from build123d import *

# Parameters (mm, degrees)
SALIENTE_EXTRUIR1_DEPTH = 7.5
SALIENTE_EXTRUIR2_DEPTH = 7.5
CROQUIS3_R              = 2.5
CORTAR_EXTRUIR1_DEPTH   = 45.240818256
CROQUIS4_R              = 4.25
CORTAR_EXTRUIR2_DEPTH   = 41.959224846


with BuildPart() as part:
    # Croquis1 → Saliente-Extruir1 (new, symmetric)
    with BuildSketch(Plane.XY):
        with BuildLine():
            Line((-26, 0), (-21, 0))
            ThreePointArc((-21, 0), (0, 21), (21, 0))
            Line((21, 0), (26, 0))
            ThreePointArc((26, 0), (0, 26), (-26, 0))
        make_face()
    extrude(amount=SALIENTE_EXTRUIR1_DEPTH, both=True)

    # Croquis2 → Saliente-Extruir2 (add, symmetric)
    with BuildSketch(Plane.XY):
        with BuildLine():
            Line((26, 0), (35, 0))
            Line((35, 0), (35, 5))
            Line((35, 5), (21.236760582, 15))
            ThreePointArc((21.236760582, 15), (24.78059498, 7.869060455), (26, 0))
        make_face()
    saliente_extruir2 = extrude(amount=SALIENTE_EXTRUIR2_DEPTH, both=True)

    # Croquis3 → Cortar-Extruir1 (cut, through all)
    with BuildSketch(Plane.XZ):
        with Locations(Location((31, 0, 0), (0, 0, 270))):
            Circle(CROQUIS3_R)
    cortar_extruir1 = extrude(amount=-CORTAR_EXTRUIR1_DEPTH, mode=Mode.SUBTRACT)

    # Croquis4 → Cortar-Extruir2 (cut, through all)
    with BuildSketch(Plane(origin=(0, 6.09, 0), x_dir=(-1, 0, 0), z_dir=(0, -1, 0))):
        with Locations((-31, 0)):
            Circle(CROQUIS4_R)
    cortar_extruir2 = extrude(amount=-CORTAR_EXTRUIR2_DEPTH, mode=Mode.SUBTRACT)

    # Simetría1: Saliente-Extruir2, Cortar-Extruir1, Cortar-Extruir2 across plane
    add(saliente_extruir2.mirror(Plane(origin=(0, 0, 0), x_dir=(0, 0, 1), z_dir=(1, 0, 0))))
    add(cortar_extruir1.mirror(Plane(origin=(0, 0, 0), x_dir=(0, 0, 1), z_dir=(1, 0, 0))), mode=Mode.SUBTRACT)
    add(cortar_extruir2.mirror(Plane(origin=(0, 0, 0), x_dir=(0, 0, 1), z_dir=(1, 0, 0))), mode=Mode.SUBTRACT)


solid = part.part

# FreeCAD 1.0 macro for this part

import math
import FreeCAD as App
import Part
import Sketcher

V = App.Vector
Q = App.Units.Quantity

doc = App.newDocument("Part")
body = doc.addObject("PartDesign::Body", "Body")

# Sketch on XY plane
sketch1 = body.newObject("Sketcher::SketchObject", "Sketch")
sketch1.AttachmentSupport = (doc.getObject("XY_Plane"), [""])
sketch1.MapMode = "FlatFace"
sketch1.addGeometry([
    Part.LineSegment(V(-26, 0, 0), V(-21, 0, 0)),
    Part.ArcOfCircle(Part.Circle(V(0, 0, 0), V(0, 0, 1), 21), math.radians(0), math.radians(180)),
    Part.LineSegment(V(21, 0, 0), V(26, 0, 0)),
    Part.ArcOfCircle(Part.Circle(V(0, 0, 0), V(0, 0, 1), 26), math.radians(0), math.radians(180)),
], False)
sketch1.addConstraint([
    Sketcher.Constraint("Coincident", 0, 2, 1, 2),
    Sketcher.Constraint("Coincident", 1, 1, 2, 1),
    Sketcher.Constraint("Coincident", 2, 2, 3, 1),
    Sketcher.Constraint("Coincident", 3, 2, 0, 1),
    Sketcher.Constraint("Horizontal", 0),
    Sketcher.Constraint("Horizontal", 2),
    Sketcher.Constraint("Coincident", 1, 3, -1, 1),
    Sketcher.Constraint("Coincident", 3, 3, -1, 1),
    Sketcher.Constraint("PointOnObject", 0, 2, -1),
    Sketcher.Constraint("PointOnObject", 1, 1, -1),
    Sketcher.Constraint("Radius", 1, Q("21 mm")),
    Sketcher.Constraint("Radius", 3, Q("26 mm")),
])
pad1 = body.newObject("PartDesign::Pad", "Pad")
pad1.Profile = sketch1
pad1.Length = 15
pad1.Midplane = True

# Sketch on XY plane
sketch2 = body.newObject("Sketcher::SketchObject", "Sketch001")
sketch2.AttachmentSupport = (doc.getObject("XY_Plane"), [""])
sketch2.MapMode = "FlatFace"
sketch2.addGeometry([
    Part.LineSegment(V(26, 0, 0), V(35, 0, 0)),
    Part.LineSegment(V(35, 0, 0), V(35, 5, 0)),
    Part.LineSegment(V(35, 5, 0), V(21, 15, 0)),
    Part.ArcOfCircle(Part.Circle(V(0, 0, 0), V(0, 0, 1), 26), math.radians(0), math.radians(35)),
], False)
sketch2.addConstraint([
    Sketcher.Constraint("Coincident", 0, 2, 1, 1),
    Sketcher.Constraint("Coincident", 1, 2, 2, 1),
    Sketcher.Constraint("Coincident", 2, 2, 3, 2),
    Sketcher.Constraint("Coincident", 3, 1, 0, 1),
    Sketcher.Constraint("Horizontal", 0),
    Sketcher.Constraint("Vertical", 1),
    Sketcher.Constraint("Coincident", 3, 3, -1, 1),
    Sketcher.Constraint("PointOnObject", 0, 2, -1),
    Sketcher.Constraint("Radius", 3, Q("26 mm")),
    Sketcher.Constraint("DistanceX", 0, 1, 0, 2, Q("9 mm")),
    Sketcher.Constraint("DistanceY", 1, 1, 1, 2, Q("5 mm")),
    Sketcher.Constraint("DistanceY", -1, 1, 2, 2, Q("15 mm")),
])
pad2 = body.newObject("PartDesign::Pad", "Pad001")
pad2.Profile = sketch2
pad2.Length = 15
pad2.Midplane = True

# Sketch on XZ plane
sketch3 = body.newObject("Sketcher::SketchObject", "Sketch002")
sketch3.AttachmentSupport = (doc.getObject("XZ_Plane"), [""])
sketch3.MapMode = "FlatFace"
sketch3.addGeometry(Part.Circle(V(31, 0, 0), V(0, 0, 1), 2.5), False)
sketch3.addConstraint([
    Sketcher.Constraint("PointOnObject", 0, 3, -1),
    Sketcher.Constraint("Diameter", 0, Q("5 mm")),
    Sketcher.Constraint("DistanceX", -1, 1, 0, 3, Q("31 mm")),
])
pocket1 = body.newObject("PartDesign::Pocket", "Pocket")
pocket1.Profile = sketch3
pocket1.Type = "ThroughAll"

# Sketch on XZ plane
sketch4 = body.newObject("Sketcher::SketchObject", "Sketch003")
sketch4.AttachmentSupport = (doc.getObject("XZ_Plane"), [""])
sketch4.MapMode = "FlatFace"
sketch4.AttachmentOffset = App.Placement(V(0, 0, -6.09), App.Rotation())
sketch4.addGeometry(Part.Circle(V(31, 0, 0), V(0, 0, 1), 4.2), False)
sketch4.addConstraint([
    Sketcher.Constraint("PointOnObject", 0, 3, -1),
    Sketcher.Constraint("Diameter", 0, Q("8.5 mm")),
    Sketcher.Constraint("DistanceX", -1, 1, 0, 3, Q("31 mm")),
])
pocket2 = body.newObject("PartDesign::Pocket", "Pocket001")
pocket2.Profile = sketch4
pocket2.Type = "ThroughAll"
doc.recompute()

mirrored = body.newObject("PartDesign::Mirrored", "Mirrored")
mirrored.Originals = [pad2, pocket1, pocket2]
mirrored.MirrorPlane = (doc.getObject("YZ_Plane"), [""])
body.Tip = mirrored

doc.recompute()
